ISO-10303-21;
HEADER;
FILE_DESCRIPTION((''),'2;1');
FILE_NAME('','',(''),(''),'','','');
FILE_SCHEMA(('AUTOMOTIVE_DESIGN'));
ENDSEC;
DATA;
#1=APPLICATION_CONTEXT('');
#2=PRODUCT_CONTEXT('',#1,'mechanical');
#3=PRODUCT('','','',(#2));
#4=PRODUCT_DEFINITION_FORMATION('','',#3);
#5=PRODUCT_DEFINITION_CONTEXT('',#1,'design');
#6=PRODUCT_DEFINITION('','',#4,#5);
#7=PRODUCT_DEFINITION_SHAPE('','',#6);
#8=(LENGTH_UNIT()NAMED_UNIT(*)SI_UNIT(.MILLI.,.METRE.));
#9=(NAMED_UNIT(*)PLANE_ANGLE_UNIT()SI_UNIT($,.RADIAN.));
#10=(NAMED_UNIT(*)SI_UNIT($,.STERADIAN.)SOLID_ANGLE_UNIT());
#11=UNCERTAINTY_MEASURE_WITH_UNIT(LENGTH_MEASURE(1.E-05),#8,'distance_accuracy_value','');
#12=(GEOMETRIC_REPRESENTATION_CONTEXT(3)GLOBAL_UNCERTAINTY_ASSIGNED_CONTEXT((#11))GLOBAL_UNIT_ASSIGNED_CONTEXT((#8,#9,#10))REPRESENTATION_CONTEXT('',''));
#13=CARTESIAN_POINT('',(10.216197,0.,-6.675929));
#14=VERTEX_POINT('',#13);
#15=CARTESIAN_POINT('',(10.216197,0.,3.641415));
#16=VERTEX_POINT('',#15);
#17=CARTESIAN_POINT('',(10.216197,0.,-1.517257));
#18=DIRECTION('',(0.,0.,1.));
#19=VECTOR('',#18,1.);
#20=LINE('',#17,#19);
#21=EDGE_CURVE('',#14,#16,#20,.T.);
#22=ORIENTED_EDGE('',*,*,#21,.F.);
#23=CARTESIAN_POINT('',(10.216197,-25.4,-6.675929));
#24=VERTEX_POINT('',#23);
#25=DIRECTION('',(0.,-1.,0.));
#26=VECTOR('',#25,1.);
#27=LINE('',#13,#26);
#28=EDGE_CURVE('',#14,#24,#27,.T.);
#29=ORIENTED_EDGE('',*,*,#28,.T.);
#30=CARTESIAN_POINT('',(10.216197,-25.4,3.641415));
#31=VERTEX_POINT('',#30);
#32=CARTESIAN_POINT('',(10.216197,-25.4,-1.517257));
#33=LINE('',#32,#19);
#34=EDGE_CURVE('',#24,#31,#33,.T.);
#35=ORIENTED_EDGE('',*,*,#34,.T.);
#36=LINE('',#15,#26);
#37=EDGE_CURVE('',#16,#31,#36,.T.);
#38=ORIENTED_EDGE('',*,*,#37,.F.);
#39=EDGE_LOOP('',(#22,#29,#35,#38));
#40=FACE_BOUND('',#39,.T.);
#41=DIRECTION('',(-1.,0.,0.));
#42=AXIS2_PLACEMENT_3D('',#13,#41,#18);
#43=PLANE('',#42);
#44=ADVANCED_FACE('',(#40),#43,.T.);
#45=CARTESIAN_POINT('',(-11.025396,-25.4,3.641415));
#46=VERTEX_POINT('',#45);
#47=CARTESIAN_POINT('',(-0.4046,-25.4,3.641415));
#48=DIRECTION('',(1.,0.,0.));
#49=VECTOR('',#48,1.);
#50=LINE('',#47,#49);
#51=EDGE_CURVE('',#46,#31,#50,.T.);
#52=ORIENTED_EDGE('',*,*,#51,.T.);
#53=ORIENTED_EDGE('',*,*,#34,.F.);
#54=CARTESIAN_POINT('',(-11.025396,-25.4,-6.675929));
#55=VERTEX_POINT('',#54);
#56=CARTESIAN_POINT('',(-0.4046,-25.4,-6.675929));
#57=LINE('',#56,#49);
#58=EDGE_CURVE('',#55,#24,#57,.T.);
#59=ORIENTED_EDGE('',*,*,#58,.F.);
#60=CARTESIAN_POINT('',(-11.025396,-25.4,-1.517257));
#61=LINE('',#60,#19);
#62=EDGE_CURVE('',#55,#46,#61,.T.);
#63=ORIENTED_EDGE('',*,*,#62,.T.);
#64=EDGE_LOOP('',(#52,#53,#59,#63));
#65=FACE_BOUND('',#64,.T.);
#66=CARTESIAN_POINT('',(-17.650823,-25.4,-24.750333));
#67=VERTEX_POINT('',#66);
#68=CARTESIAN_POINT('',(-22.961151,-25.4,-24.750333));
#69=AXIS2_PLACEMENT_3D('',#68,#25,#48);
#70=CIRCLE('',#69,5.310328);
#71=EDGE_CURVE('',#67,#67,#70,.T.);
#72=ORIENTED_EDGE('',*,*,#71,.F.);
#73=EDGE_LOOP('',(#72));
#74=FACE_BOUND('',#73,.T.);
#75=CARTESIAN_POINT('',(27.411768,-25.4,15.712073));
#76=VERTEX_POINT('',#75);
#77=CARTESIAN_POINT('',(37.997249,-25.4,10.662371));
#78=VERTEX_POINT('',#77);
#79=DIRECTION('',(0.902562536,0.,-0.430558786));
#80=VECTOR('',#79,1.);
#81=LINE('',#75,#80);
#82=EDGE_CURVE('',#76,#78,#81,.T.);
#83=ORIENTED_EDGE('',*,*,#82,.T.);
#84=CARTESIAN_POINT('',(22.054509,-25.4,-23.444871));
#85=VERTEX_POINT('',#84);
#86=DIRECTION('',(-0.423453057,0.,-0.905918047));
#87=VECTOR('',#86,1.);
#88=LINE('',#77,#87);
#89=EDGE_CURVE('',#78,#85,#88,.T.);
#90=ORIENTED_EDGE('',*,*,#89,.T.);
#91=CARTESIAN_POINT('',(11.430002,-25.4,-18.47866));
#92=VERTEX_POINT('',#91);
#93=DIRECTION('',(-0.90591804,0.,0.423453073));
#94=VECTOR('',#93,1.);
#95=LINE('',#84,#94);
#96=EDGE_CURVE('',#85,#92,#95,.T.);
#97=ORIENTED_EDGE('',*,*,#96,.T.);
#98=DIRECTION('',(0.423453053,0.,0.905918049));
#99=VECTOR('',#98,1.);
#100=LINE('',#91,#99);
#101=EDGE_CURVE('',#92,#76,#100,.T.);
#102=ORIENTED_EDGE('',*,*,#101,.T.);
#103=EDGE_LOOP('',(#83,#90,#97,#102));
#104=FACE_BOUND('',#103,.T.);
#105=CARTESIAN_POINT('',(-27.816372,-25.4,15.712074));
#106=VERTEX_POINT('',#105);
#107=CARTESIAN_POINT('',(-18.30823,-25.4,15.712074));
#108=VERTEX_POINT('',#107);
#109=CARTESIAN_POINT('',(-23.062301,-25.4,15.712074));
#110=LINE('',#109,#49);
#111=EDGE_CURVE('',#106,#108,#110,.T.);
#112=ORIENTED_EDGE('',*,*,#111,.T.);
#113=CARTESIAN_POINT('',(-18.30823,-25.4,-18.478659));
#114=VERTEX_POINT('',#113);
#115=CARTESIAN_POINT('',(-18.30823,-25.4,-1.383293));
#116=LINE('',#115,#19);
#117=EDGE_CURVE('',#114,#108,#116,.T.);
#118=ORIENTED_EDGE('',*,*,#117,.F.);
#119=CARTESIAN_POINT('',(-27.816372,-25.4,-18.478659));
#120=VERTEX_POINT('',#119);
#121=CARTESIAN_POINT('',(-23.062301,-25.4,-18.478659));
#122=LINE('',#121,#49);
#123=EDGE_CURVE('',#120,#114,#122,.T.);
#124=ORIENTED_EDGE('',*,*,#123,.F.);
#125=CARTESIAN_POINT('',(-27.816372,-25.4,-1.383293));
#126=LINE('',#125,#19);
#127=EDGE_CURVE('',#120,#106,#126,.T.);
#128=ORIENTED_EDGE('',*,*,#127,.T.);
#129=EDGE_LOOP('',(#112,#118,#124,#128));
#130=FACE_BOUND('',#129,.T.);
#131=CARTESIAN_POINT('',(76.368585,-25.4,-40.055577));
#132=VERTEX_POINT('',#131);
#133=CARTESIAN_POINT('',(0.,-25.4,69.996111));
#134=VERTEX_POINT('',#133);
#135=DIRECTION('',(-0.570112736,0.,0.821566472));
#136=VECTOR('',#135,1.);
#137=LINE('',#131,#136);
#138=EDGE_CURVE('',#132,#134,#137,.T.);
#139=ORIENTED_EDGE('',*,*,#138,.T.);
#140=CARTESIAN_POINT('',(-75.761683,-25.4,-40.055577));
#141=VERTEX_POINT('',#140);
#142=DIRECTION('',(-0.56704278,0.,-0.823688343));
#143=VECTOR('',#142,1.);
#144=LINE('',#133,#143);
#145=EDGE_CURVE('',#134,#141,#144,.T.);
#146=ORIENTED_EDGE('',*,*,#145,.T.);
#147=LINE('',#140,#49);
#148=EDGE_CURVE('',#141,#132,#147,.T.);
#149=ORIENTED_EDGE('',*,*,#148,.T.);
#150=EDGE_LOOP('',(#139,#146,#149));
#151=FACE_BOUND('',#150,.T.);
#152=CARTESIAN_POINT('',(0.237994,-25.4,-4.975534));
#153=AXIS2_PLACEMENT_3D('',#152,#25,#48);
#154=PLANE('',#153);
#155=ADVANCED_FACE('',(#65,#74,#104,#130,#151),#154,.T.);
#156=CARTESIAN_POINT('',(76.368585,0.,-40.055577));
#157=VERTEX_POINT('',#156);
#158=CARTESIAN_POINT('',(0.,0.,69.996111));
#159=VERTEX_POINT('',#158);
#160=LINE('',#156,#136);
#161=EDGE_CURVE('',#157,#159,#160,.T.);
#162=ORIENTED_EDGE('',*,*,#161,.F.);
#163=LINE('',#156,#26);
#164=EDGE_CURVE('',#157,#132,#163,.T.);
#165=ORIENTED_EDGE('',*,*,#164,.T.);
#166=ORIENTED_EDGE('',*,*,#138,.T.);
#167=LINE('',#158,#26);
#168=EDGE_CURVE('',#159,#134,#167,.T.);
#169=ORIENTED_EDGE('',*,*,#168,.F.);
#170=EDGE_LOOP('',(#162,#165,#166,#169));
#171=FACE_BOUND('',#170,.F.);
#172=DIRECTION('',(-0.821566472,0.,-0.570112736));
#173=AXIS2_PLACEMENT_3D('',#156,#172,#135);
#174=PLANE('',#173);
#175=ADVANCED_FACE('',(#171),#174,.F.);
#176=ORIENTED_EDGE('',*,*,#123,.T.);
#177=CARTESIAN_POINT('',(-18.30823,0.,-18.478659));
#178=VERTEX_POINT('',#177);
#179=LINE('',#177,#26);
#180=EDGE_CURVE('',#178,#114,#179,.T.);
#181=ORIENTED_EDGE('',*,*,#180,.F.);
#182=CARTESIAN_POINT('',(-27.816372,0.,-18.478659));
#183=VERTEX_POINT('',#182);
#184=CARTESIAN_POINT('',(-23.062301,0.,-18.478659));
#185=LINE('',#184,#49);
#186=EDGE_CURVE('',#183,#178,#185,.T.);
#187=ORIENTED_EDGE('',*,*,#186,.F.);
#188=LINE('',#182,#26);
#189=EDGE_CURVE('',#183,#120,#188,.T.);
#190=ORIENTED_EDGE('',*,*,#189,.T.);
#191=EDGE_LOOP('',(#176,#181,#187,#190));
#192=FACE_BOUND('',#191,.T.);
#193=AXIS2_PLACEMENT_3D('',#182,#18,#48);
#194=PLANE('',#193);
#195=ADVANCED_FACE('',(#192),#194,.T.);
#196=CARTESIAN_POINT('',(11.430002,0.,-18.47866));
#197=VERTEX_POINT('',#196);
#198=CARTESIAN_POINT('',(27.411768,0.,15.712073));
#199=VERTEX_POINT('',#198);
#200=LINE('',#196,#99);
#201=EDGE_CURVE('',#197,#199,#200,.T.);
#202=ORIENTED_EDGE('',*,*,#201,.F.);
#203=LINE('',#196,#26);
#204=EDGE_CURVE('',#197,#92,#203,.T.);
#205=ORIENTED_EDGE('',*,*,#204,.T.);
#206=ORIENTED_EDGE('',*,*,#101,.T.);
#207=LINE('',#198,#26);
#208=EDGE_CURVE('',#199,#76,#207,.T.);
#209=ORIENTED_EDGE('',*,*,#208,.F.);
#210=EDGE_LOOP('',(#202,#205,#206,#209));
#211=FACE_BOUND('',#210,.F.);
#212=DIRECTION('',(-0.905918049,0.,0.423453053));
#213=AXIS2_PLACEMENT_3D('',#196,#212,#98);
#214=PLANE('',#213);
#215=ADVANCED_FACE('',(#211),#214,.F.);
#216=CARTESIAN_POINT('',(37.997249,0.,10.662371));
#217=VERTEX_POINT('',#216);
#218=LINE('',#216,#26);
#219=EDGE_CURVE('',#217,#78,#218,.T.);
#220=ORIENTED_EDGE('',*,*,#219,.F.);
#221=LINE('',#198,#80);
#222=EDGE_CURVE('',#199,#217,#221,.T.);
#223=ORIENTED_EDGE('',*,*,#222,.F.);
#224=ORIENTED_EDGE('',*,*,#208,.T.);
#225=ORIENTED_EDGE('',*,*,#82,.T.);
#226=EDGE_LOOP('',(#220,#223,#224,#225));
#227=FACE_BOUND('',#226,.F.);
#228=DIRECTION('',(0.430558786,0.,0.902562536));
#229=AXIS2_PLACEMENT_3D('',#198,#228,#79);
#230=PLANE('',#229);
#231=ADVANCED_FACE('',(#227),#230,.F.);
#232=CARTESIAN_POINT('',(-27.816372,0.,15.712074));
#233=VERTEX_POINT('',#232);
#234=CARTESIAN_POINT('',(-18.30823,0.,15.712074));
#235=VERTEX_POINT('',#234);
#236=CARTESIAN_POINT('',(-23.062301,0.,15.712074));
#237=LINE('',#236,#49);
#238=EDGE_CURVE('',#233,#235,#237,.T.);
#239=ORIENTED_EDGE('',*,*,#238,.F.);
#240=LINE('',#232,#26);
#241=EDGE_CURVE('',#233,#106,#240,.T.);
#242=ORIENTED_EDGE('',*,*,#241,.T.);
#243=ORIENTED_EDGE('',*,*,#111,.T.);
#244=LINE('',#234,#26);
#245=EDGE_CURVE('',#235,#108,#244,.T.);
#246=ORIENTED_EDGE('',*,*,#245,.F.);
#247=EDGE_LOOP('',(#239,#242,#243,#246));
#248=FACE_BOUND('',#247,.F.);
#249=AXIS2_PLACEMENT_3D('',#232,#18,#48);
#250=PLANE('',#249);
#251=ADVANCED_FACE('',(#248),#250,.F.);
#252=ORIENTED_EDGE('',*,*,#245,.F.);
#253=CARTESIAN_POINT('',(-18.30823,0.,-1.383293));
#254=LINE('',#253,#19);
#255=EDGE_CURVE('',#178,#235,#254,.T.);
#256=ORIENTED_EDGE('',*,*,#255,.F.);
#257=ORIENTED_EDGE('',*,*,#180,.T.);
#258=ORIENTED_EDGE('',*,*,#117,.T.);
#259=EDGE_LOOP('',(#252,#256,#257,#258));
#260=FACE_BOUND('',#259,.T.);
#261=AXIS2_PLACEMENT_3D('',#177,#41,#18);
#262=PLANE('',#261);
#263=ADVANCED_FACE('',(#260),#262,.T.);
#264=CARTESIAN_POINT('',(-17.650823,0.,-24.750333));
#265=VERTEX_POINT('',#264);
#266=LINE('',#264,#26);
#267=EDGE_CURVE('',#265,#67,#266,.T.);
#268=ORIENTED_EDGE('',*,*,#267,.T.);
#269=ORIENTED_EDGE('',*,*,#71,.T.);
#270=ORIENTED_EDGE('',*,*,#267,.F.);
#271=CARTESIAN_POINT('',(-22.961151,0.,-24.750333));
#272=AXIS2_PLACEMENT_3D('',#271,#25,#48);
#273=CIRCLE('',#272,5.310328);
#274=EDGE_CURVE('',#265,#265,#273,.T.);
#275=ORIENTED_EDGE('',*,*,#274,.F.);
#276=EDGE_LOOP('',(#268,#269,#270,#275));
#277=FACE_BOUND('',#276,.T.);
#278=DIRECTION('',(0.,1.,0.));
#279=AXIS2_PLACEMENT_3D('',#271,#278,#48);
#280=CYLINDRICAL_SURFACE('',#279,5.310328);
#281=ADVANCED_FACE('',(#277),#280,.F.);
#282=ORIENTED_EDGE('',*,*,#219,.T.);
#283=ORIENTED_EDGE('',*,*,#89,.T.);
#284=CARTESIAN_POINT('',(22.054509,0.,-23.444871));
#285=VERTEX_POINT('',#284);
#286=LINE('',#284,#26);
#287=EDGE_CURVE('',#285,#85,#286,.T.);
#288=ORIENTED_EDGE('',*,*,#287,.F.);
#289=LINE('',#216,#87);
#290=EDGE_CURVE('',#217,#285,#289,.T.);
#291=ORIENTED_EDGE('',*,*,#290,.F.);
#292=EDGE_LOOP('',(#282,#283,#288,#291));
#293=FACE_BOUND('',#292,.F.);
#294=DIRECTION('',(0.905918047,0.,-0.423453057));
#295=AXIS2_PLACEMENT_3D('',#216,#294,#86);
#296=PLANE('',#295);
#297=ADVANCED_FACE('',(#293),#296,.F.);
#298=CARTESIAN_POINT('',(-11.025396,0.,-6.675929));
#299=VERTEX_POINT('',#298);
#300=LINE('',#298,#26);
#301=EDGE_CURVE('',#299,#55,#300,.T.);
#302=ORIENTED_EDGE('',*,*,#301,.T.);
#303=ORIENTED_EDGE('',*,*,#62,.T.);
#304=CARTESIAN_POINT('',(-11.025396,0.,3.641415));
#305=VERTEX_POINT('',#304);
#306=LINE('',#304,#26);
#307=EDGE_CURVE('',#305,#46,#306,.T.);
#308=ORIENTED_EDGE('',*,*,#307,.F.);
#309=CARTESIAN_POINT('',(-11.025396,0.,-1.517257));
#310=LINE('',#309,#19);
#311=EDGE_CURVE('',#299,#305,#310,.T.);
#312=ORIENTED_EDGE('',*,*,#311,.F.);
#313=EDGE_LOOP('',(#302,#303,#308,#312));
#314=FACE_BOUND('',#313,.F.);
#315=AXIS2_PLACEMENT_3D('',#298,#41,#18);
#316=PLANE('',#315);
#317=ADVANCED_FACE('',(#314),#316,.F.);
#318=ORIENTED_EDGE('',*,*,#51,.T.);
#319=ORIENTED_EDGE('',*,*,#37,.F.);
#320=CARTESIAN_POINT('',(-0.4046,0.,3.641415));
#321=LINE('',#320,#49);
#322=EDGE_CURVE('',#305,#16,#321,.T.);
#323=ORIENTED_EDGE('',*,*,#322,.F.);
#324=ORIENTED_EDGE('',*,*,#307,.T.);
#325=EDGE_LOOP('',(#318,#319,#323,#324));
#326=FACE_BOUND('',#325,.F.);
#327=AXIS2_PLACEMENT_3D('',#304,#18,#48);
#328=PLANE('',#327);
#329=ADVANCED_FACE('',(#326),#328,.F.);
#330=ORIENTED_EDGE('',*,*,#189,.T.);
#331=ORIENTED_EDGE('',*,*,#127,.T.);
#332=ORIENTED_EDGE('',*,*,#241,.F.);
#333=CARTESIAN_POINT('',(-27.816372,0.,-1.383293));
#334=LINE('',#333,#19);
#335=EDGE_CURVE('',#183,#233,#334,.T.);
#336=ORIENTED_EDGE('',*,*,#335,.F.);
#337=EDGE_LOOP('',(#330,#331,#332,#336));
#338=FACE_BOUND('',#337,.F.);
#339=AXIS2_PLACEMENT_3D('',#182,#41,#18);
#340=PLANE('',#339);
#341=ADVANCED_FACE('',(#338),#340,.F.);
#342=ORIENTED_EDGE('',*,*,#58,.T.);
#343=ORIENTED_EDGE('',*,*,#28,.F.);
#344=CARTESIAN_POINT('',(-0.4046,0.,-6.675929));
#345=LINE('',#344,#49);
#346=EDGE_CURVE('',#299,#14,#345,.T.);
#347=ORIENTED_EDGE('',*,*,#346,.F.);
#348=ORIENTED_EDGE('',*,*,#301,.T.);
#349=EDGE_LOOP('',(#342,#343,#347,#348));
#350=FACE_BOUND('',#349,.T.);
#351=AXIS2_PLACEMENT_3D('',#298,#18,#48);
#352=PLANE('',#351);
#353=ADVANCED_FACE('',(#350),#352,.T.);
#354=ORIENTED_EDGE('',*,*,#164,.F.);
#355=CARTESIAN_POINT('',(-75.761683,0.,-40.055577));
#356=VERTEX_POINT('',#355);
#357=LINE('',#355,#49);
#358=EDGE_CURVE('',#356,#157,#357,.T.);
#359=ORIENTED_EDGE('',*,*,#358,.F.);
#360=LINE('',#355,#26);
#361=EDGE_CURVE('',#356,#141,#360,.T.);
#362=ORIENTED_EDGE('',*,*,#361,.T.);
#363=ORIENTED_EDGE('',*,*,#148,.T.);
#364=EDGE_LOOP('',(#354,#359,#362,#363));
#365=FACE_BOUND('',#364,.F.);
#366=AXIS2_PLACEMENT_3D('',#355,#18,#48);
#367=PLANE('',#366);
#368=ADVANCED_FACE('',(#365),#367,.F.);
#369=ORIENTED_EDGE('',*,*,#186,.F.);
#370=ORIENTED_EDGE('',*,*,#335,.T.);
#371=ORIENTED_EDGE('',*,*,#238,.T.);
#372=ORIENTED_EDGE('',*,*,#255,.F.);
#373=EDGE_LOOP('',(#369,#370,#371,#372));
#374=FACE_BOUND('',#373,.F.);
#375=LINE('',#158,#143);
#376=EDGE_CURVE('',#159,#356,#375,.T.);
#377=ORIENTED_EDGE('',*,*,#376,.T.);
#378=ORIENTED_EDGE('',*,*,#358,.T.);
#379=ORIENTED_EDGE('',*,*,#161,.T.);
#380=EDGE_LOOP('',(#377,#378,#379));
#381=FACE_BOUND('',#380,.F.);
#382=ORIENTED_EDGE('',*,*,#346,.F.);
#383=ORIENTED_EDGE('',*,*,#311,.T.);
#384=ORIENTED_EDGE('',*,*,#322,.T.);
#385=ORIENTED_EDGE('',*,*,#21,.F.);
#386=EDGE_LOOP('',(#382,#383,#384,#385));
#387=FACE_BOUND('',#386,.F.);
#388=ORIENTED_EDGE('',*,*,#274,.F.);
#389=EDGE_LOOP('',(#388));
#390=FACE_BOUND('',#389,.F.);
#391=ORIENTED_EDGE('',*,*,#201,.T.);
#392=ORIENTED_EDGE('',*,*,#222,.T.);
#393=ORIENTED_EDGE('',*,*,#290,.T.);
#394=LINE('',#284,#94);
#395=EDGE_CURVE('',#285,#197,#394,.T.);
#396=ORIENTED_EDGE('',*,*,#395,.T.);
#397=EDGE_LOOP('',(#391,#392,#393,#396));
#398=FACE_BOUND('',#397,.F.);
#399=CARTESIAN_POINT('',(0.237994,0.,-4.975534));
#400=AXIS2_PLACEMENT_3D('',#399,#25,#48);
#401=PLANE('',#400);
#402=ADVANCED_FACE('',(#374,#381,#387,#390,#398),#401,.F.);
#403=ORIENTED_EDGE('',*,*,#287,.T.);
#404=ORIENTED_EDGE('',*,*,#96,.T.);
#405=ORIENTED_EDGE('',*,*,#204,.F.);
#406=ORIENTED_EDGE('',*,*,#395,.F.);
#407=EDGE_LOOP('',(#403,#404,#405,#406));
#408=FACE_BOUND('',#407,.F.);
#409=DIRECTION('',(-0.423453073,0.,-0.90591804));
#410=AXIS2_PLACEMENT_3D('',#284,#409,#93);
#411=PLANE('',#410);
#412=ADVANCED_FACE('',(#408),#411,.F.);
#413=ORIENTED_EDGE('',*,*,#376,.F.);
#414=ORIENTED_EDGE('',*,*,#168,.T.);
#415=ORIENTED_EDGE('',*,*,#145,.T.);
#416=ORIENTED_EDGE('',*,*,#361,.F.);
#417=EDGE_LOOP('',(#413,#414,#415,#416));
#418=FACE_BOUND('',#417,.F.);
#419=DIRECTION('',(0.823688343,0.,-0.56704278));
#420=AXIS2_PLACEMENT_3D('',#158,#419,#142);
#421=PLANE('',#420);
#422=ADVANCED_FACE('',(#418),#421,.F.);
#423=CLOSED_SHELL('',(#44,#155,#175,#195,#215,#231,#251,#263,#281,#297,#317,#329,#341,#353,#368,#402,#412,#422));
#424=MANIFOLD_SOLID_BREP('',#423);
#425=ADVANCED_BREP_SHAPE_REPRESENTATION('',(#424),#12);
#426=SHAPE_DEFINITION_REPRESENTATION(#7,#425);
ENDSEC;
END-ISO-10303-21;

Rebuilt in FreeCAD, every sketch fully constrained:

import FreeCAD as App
import Part
import Sketcher
Q = App.Units.Quantity


def add_polygon(sketch, points):
    """Adds a closed chain of lines whose ends are joined by coincident constraints."""
    first, n = sketch.GeometryCount, len(points)
    for a, b in zip(points, points[1:] + points[:1]):
        sketch.addGeometry(Part.LineSegment(App.Vector(*a, 0), App.Vector(*b, 0)), False)
    for i in range(n):
        sketch.addConstraint(Sketcher.Constraint("Coincident", first + i, 2, first + (i + 1) % n, 1))

doc = App.newDocument("Part")
body = doc.addObject("PartDesign::Body", "Body")

sketch1 = body.newObject("Sketcher::SketchObject", "Sketch")
sketch1.AttachmentSupport = (doc.getObject("XZ_Plane"), [""])
sketch1.MapMode = "FlatFace"
add_polygon(sketch1, [(76, -40), (0, 70), (-76, -40)])
sketch1.addGeometry(Part.Circle(App.Vector(-23, -25, 0), App.Vector(0, 0, 1), 5), False)
add_polygon(sketch1, [(-18, -18), (-28, -18), (-28, 16), (-18, 16)])
add_polygon(sketch1, [(10, -7), (-11, -7), (-11, 4), (10, 4)])
add_polygon(sketch1, [(22, -23), (11, -18), (27, 16), (38, 11)])
sketch1.addConstraint(Sketcher.Constraint("Horizontal", 2))
sketch1.addConstraint(Sketcher.Constraint("Horizontal", 4))
sketch1.addConstraint(Sketcher.Constraint("Vertical", 5))
sketch1.addConstraint(Sketcher.Constraint("Horizontal", 6))
sketch1.addConstraint(Sketcher.Constraint("Vertical", 7))
sketch1.addConstraint(Sketcher.Constraint("Horizontal", 8))
sketch1.addConstraint(Sketcher.Constraint("Vertical", 9))
sketch1.addConstraint(Sketcher.Constraint("Horizontal", 10))
sketch1.addConstraint(Sketcher.Constraint("Vertical", 11))
sketch1.addConstraint(Sketcher.Constraint("PointOnObject", 0, 2, -2))
sketch1.addConstraint(Sketcher.Constraint("Perpendicular", 12, 13))
sketch1.addConstraint(Sketcher.Constraint("Parallel", 13, 15))
sketch1.addConstraint(Sketcher.Constraint("Horizontal", 7, 2, 12, 2))
sketch1.addConstraint(Sketcher.Constraint("Horizontal", 6, 2, 13, 2))
sketch1.addConstraint(Sketcher.Constraint("DistanceX", -1, 1, 12, 2, Q("0.4500001 in")))
sketch1.addConstraint(Sketcher.Constraint("Diameter", 3, Q("10.620656 mm")))
sketch1.addConstraint(Sketcher.Constraint("DistanceX", 2, 1, 2, 2, Q("152.130268 mm")))
sketch1.addConstraint(Sketcher.Constraint("DistanceX", 8, 2, 12, 2, Q("22.455399 mm")))
sketch1.addConstraint(Sketcher.Constraint("DistanceY", 11, 2, 14, 2, Q("17.3383 mm")))
sketch1.addConstraint(Sketcher.Constraint("Distance", 0, Q("133.95348 mm")))
sketch1.addConstraint(Sketcher.Constraint("Distance", 12, Q("11.72789 mm")))
sketch1.addConstraint(Sketcher.Constraint("Distance", 13, Q("37.74153 mm")))
sketch1.addConstraint(Sketcher.Constraint("Distance", 15, Q("37.649368 mm")))
sketch1.addConstraint(Sketcher.Constraint("DistanceX", 4, 2, 4, 1, Q("9.508142 mm")))
sketch1.addConstraint(Sketcher.Constraint("DistanceX", 8, 2, 8, 1, Q("21.241593 mm")))
sketch1.addConstraint(Sketcher.Constraint("DistanceY", 5, 1, 5, 2, Q("34.190733 mm")))
sketch1.addConstraint(Sketcher.Constraint("DistanceY", 9, 1, 9, 2, Q("10.317345 mm")))
sketch1.addConstraint(Sketcher.Constraint("DistanceX", 3, 3, -1, 1, Q("22.961151 mm")))
sketch1.addConstraint(Sketcher.Constraint("DistanceY", -1, 1, 0, 2, Q("69.996111 mm")))
sketch1.addConstraint(Sketcher.Constraint("DistanceY", 4, 2, -1, 1, Q("18.478659 mm")))
sketch1.addConstraint(Sketcher.Constraint("DistanceX", 6, 2, -1, 1, Q("18.30823 mm")))
sketch1.addConstraint(Sketcher.Constraint("DistanceY", 1, 2, 0, 2, Q("110.051688 mm")))
sketch1.addConstraint(Sketcher.Constraint("DistanceY", 3, 3, -1, 1, Q("24.750333 mm")))
pad1 = body.newObject("PartDesign::Pad", "Pad")
pad1.Profile = sketch1
pad1.Length = Q("1 in")

doc.recompute()
